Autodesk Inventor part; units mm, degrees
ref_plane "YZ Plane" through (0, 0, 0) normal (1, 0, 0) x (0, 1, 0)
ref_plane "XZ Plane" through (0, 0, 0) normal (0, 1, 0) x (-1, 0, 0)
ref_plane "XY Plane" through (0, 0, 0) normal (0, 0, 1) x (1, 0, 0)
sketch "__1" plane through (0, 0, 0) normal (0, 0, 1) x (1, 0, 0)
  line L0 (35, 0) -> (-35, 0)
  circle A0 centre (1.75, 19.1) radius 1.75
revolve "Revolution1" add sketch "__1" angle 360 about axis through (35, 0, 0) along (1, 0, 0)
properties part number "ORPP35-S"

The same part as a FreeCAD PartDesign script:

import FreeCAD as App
import Part
import Sketcher
from FreeCAD import Vector
Q = App.Units.Quantity

doc = App.newDocument("Part")
body = doc.addObject("PartDesign::Body", "Body")

# Sketch on XY plane
sketch1 = body.newObject("Sketcher::SketchObject", "Sketch")
sketch1.AttachmentSupport = (doc.getObject("XY_Plane"), [""])
sketch1.MapMode = "FlatFace"
sketch1.addGeometry(Part.Circle(Vector(1.8, 19.1, 0), Vector(0, 0, 1), 1.8), False)
sketch1.addConstraint([
    Sketcher.Constraint("Diameter", 0, Q("3.5 mm")),
    Sketcher.Constraint("DistanceY", -1, 1, 0, 3, Q("19.1 mm")),
    Sketcher.Constraint("DistanceX", -1, 1, 0, 3, Q("1.75 mm")),
])
revolution = body.newObject("PartDesign::Revolution", "Revolution")
revolution.Profile = sketch1
revolution.ReferenceAxis = (sketch1, ["H_Axis"])
revolution.Angle = 360

doc.recompute()
